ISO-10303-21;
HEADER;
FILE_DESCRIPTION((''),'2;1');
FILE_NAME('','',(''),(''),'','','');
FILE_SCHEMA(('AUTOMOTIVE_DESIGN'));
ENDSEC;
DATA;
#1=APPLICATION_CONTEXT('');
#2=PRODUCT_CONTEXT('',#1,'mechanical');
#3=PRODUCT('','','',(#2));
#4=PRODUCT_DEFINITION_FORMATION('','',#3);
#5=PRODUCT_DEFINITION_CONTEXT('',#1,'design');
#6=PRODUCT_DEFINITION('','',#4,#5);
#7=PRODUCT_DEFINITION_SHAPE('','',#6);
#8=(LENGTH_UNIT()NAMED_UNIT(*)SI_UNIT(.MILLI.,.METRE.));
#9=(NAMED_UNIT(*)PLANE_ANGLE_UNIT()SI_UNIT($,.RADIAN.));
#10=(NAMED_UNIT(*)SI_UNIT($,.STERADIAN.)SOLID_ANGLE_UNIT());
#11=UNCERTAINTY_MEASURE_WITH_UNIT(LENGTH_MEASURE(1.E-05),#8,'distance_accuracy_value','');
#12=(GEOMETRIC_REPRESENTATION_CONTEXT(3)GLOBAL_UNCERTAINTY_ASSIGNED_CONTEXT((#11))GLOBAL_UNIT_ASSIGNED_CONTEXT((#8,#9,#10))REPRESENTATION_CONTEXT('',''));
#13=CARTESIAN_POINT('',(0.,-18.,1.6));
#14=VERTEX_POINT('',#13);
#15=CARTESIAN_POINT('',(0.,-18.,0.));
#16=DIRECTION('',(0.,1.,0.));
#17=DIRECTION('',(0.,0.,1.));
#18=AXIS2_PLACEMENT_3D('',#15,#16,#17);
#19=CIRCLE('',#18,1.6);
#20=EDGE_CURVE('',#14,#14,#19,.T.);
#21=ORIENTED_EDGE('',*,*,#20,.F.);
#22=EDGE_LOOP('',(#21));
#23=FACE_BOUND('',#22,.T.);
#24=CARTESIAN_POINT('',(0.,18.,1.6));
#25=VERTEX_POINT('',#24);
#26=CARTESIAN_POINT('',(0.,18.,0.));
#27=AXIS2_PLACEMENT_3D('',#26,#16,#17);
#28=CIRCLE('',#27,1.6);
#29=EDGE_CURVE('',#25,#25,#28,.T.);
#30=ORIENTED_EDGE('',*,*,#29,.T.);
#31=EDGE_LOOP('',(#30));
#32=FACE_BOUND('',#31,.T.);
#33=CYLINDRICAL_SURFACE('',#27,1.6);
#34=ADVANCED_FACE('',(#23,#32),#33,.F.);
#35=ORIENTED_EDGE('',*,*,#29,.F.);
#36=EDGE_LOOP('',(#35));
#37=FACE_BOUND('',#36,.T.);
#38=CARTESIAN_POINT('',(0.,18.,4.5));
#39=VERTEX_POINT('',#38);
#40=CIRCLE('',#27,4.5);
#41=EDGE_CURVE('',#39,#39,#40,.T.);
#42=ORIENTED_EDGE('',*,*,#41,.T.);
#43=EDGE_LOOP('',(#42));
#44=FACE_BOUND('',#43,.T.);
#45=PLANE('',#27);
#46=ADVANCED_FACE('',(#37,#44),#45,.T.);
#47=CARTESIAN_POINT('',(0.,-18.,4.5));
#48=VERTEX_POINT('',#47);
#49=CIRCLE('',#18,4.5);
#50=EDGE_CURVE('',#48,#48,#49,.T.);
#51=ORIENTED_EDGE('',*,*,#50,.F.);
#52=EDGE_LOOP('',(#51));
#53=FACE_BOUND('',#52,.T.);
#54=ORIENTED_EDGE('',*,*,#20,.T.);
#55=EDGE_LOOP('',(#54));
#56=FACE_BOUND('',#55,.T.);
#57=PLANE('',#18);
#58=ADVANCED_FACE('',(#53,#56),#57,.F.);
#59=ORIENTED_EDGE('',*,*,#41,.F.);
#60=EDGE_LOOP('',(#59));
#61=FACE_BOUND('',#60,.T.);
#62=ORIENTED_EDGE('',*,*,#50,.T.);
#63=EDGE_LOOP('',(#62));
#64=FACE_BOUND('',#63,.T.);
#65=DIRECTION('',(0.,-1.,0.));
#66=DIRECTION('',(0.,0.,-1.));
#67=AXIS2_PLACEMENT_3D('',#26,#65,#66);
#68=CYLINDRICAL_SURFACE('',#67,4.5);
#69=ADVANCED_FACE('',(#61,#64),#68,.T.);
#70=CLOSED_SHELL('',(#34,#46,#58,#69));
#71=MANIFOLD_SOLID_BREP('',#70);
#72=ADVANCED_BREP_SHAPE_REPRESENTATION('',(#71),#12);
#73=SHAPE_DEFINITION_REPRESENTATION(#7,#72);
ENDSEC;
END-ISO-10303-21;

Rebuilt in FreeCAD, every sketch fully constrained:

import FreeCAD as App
import Part
import Sketcher

V = App.Vector

doc = App.newDocument("Part")
body = doc.addObject("PartDesign::Body", "Body")

# Sketch on XZ plane
sketch1 = doc.addObject("Sketcher::SketchObject", "Sketch")
body.addObject(sketch1)
sketch1.AttachmentSupport = (doc.XZ_Plane, [""])
sketch1.MapMode = "FlatFace"
sketch1.addGeometry(Part.Circle(V(0, 0, 0), V(0, 0, 1), 4.5), False)
sketch1.addConstraint([
    Sketcher.Constraint("Coincident", 0, 3, -1, 1),
    Sketcher.Constraint("Diameter", 0, 9.0),
])
pad1 = doc.addObject("PartDesign::Pad", "Pad")
body.addObject(pad1)
pad1.Profile = sketch1
pad1.Length = 36
pad1.Midplane = True

# Sketch on XZ plane
sketch2 = doc.addObject("Sketcher::SketchObject", "Sketch001")
body.addObject(sketch2)
sketch2.AttachmentSupport = (doc.XZ_Plane, [""])
sketch2.MapMode = "FlatFace"
sketch2.AttachmentOffset = App.Placement(V(0, 0, -18), App.Rotation())
sketch2.addGeometry(Part.Circle(V(0, 0, 0), V(0, 0, 1), 1.6), False)
sketch2.addConstraint([
    Sketcher.Constraint("Coincident", 0, 3, -1, 1),
    Sketcher.Constraint("Diameter", 0, 3.2),
])
doc.recompute()
hole = doc.addObject("PartDesign::Hole", "Hole")
body.addObject(hole)
hole.Profile = sketch2
hole.ThreadType = "None"
hole.Diameter = 3.2
hole.DepthType = "ThroughAll"
hole.Reversed = True

doc.recompute()
